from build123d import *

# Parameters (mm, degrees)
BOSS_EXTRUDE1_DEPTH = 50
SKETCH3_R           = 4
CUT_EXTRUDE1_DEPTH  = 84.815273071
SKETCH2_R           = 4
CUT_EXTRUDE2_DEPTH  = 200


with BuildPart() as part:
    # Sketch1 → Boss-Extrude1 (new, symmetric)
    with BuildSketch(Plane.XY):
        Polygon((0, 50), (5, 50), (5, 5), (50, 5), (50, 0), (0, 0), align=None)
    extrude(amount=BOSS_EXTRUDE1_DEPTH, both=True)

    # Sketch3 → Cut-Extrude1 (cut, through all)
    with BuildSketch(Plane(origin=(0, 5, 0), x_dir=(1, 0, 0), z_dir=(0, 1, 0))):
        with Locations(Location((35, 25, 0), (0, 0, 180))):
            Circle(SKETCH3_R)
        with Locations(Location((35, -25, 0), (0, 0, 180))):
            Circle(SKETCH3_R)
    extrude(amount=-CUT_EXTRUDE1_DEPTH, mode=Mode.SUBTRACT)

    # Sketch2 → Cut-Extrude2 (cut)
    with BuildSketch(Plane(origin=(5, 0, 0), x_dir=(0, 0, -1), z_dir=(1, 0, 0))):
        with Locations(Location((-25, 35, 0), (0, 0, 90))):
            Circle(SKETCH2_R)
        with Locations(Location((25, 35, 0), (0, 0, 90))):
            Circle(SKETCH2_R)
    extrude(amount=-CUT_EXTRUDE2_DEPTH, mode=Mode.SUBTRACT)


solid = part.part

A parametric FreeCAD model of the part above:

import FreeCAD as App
import Part
import Sketcher


def add_polygon(sketch, points):
    """Adds a closed chain of lines whose ends are joined by coincident constraints."""
    first, n = sketch.GeometryCount, len(points)
    for a, b in zip(points, points[1:] + points[:1]):
        sketch.addGeometry(Part.LineSegment(App.Vector(*a, 0), App.Vector(*b, 0)), False)
    for i in range(n):
        sketch.addConstraint(Sketcher.Constraint("Coincident", first + i, 2, first + (i + 1) % n, 1))

doc = App.newDocument("Part")
body = doc.addObject("PartDesign::Body", "Body")

# Sketch on XY plane
sketch1 = body.newObject("Sketcher::SketchObject", "Sketch")
sketch1.AttachmentSupport = (doc.getObject("XY_Plane"), [""])
sketch1.MapMode = "FlatFace"
add_polygon(sketch1, [(5, 50), (0, 50), (0, 0), (50, 0), (50, 5), (5, 5)])  # lines 0-5
sketch1.addConstraint([
    Sketcher.Constraint("Horizontal", 0),
    Sketcher.Constraint("Vertical", 1),
    Sketcher.Constraint("Horizontal", 2),
    Sketcher.Constraint("Vertical", 3),
    Sketcher.Constraint("Horizontal", 4),
    Sketcher.Constraint("Vertical", 5),
    Sketcher.Constraint("Coincident", 1, 2, -1, 1),
    Sketcher.Constraint("Equal", 2, 1),
    Sketcher.Constraint("Equal", 0, 3),
    Sketcher.Constraint("DistanceX", 0, 2, 0, 1, 5.0),
    Sketcher.Constraint("DistanceX", 2, 1, 2, 2, 50.0),
])
pad1 = body.newObject("PartDesign::Pad", "Pad")
pad1.Profile = sketch1
pad1.Length = 100
pad1.Midplane = True

# Sketch on XZ plane
sketch2 = body.newObject("Sketcher::SketchObject", "Sketch001")
sketch2.AttachmentSupport = (doc.getObject("XZ_Plane"), [""])
sketch2.MapMode = "FlatFace"
sketch2.AttachmentOffset = App.Placement(App.Vector(0, 0, -5), App.Rotation())
sketch2.addGeometry([
    Part.Circle(App.Vector(35, -25, 0), App.Vector(0, 0, 1), 4),
    Part.Circle(App.Vector(35, 25, 0), App.Vector(0, 0, 1), 4),
], False)
sketch2.addConstraint([
    Sketcher.Constraint("Equal", 0, 1),
    Sketcher.Constraint("Symmetric", 0, 3, 1, 3, -1),
    Sketcher.Constraint("Diameter", 0, 8.0),
    Sketcher.Constraint("DistanceX", -1, 1, 0, 3, 35.0),
    Sketcher.Constraint("DistanceY", 0, 3, -1, 1, 25.0),
])
pocket1 = body.newObject("PartDesign::Pocket", "Pocket")
pocket1.Profile = sketch2
pocket1.Type = "ThroughAll"
pocket1.Reversed = True

# Sketch on YZ plane
sketch3 = body.newObject("Sketcher::SketchObject", "Sketch002")
sketch3.AttachmentSupport = (doc.getObject("YZ_Plane"), [""])
sketch3.MapMode = "FlatFace"
sketch3.AttachmentOffset = App.Placement(App.Vector(0, 0, 5), App.Rotation())
sketch3.addGeometry([
    Part.Circle(App.Vector(35, 25, 0), App.Vector(0, 0, 1), 4),
    Part.Circle(App.Vector(35, -25, 0), App.Vector(0, 0, 1), 4),
], False)
sketch3.addConstraint([
    Sketcher.Constraint("Equal", 0, 1),
    Sketcher.Constraint("Symmetric", 0, 3, 1, 3, -1),
    Sketcher.Constraint("Diameter", 0, 8.0),
    Sketcher.Constraint("DistanceX", -1, 1, 0, 3, 35.0),
    Sketcher.Constraint("DistanceY", -1, 1, 0, 3, 25.0),
])
pocket2 = body.newObject("PartDesign::Pocket", "Pocket001")
pocket2.Profile = sketch3
pocket2.Length = 200

doc.recompute()
